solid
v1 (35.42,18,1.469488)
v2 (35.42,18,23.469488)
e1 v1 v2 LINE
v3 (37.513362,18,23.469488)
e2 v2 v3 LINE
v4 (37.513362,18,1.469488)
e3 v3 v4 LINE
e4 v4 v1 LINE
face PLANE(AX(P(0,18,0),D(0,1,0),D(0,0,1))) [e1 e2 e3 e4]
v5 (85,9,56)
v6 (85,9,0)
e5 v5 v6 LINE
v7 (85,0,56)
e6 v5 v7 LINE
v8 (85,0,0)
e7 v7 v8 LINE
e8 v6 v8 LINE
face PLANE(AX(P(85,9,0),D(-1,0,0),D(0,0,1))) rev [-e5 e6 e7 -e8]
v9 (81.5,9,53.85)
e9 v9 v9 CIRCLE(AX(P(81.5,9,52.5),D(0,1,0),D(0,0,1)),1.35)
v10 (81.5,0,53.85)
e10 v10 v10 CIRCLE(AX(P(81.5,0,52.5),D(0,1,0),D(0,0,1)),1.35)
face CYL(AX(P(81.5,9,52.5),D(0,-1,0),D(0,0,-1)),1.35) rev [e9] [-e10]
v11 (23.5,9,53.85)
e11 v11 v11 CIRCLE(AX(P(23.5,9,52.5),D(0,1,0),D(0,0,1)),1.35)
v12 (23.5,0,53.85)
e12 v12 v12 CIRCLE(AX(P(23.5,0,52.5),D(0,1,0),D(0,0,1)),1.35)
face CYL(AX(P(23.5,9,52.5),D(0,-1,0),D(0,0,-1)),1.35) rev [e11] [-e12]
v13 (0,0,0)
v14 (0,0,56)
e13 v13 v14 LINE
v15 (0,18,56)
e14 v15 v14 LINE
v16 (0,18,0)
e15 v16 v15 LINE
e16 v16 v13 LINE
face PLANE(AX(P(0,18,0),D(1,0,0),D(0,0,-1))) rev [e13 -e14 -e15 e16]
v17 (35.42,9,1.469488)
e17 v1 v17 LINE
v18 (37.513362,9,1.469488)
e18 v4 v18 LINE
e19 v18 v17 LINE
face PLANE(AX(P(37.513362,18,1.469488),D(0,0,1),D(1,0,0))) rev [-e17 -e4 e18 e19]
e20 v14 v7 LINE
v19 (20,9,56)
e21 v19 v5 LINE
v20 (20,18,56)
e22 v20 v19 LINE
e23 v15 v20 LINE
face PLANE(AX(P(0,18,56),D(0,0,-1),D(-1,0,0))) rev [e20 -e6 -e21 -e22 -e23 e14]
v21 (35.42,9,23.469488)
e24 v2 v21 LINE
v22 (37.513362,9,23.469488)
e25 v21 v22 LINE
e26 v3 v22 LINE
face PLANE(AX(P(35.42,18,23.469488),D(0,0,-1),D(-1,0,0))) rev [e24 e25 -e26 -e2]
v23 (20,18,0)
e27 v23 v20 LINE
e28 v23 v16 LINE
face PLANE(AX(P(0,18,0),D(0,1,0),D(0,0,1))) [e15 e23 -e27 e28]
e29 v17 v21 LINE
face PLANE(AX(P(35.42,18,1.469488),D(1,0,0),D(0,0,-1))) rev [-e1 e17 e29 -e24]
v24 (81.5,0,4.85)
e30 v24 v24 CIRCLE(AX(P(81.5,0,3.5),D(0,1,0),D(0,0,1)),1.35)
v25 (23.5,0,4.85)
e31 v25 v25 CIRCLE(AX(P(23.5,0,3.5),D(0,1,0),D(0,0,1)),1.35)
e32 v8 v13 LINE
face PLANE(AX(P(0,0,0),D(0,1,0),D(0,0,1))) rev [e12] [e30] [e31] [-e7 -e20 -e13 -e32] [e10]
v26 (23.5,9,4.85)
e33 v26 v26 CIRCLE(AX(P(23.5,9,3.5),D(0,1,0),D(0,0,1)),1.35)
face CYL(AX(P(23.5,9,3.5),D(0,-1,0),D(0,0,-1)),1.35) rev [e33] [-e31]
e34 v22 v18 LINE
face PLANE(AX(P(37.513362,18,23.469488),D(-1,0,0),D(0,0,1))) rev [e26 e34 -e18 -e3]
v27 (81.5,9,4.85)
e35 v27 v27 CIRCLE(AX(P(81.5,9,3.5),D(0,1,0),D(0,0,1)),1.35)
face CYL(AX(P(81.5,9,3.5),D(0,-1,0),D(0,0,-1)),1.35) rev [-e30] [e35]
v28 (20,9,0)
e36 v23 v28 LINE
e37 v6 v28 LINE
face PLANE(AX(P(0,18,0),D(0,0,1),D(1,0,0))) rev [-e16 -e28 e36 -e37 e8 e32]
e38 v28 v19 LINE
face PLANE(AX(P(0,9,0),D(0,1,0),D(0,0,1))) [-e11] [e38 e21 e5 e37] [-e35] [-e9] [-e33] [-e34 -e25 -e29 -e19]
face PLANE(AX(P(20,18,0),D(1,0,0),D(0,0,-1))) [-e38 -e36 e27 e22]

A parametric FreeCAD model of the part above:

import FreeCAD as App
import Part
import Sketcher
from FreeCAD import Vector


def add_polygon(sketch, points):
    """Adds a closed chain of lines whose ends are joined by coincident constraints."""
    first, n = sketch.GeometryCount, len(points)
    for a, b in zip(points, points[1:] + points[:1]):
        sketch.addGeometry(Part.LineSegment(App.Vector(*a, 0), App.Vector(*b, 0)), False)
    for i in range(n):
        sketch.addConstraint(Sketcher.Constraint("Coincident", first + i, 2, first + (i + 1) % n, 1))

doc = App.newDocument("Part")
params = doc.addObject("Spreadsheet::Sheet", "Params")
for row, (alias, value) in enumerate([
    ("sketch1_width", "20 mm"),
    ("sketch1_height", "56 mm"),
    ("pad1_length", "18 mm"),
    ("sketch2_height", "22 mm"),
    ("pad2_length", "18 mm"),
    ("sketch3_diameter", "2.7 mm"),
    ("sketch3_width", "65 mm"),
    ("sketch3_height", "56 mm"),
    ("sketch3_height2", "22 mm"),
    ("pad3_length", "9 mm"),
], start=1):
    params.set(f"A{row}", alias)
    params.set(f"B{row}", "=" + value)
    params.setAlias(f"B{row}", alias)

body = doc.addObject("PartDesign::Body", "Body")

# Sketch on XZ plane
sketch1 = body.newObject("Sketcher::SketchObject", "Sketch")
sketch1.AttachmentSupport = (doc.getObject("XZ_Plane"), [""])
sketch1.MapMode = "FlatFace"
add_polygon(sketch1, [(0, 0), (0, 56), (20, 56), (20, 0)])  # lines 0-3
sketch1.addConstraint(Sketcher.Constraint("Vertical", 0))
sketch1.addConstraint(Sketcher.Constraint("Horizontal", 1))
sketch1.addConstraint(Sketcher.Constraint("Vertical", 2))
sketch1.addConstraint(Sketcher.Constraint("Horizontal", 3))
sketch1.addConstraint(Sketcher.Constraint("Coincident", 3, 2, -1, 1))
sketch1.addConstraint(Sketcher.Constraint("DistanceX", 1, 1, 1, 2, 20.0))
sketch1.addConstraint(Sketcher.Constraint("DistanceY", 0, 1, 0, 2, 56.0))
sketch1.setExpression("Constraints[9]", "Params.sketch1_width")
sketch1.setExpression("Constraints[10]", "Params.sketch1_height")
pad1 = body.newObject("PartDesign::Pad", "Pad")
pad1.Profile = sketch1
pad1.setExpression("Length", "Params.pad1_length")
pad1.Reversed = True
body2 = doc.addObject("PartDesign::Body", "Body001")

# Sketch on XZ plane
sketch2 = body2.newObject("Sketcher::SketchObject", "Sketch001")
sketch2.AttachmentSupport = (doc.getObject("XZ_Plane001"), [""])
sketch2.MapMode = "FlatFace"
add_polygon(sketch2, [(35.4, 1.5), (35.4, 23.5), (37.5, 23.5), (37.5, 1.5)])  # lines 0-3
sketch2.addConstraint(Sketcher.Constraint("Vertical", 0))
sketch2.addConstraint(Sketcher.Constraint("Horizontal", 1))
sketch2.addConstraint(Sketcher.Constraint("Vertical", 2))
sketch2.addConstraint(Sketcher.Constraint("Horizontal", 3))
sketch2.addConstraint(Sketcher.Constraint("DistanceY", 0, 1, 0, 2, 22.0))
sketch2.addConstraint(Sketcher.Constraint("DistanceX", -1, 1, 0, 2, 35.42))
sketch2.addConstraint(Sketcher.Constraint("DistanceX", 1, 1, 1, 2, 2.093362))
sketch2.addConstraint(Sketcher.Constraint("DistanceY", -1, 1, 0, 2, 23.469488))
sketch2.setExpression("Constraints[8]", "Params.sketch2_height")
pad2 = body2.newObject("PartDesign::Pad", "Pad001")
pad2.Profile = sketch2
pad2.setExpression("Length", "Params.pad2_length")
pad2.Reversed = True
body.AllowCompound = True
doc.recompute()

boolean = body.newObject("PartDesign::Boolean", "Boolean")
boolean.Type = "Fuse"
boolean.addObjects([body2])

# Sketch on XZ plane
sketch3 = body.newObject("Sketcher::SketchObject", "Sketch002")
sketch3.AttachmentSupport = (doc.getObject("XZ_Plane"), [""])
sketch3.MapMode = "FlatFace"
add_polygon(sketch3, [(20, 0), (20, 56), (85, 56), (85, 0)])  # lines 0-3
sketch3.addGeometry(Part.Circle(Vector(23.5, 52.5, 0), Vector(0, 0, 1), 1.4), False)  # 4
sketch3.addGeometry(Part.Circle(Vector(81.5, 52.5, 0), Vector(0, 0, 1), 1.4), False)  # 5
add_polygon(sketch3, [(37.5, 23.5), (35.4, 23.5), (35.4, 1.5), (37.5, 1.5)])  # lines 6-9
sketch3.addGeometry(Part.Circle(Vector(23.5, 3.5, 0), Vector(0, 0, 1), 1.4), False)  # 10
sketch3.addGeometry(Part.Circle(Vector(81.5, 3.5, 0), Vector(0, 0, 1), 1.4), False)  # 11
sketch3.addConstraint(Sketcher.Constraint("Vertical", 0))
sketch3.addConstraint(Sketcher.Constraint("Horizontal", 1))
sketch3.addConstraint(Sketcher.Constraint("Vertical", 2))
sketch3.addConstraint(Sketcher.Constraint("Horizontal", 3))
sketch3.addConstraint(Sketcher.Constraint("Horizontal", 6))
sketch3.addConstraint(Sketcher.Constraint("Vertical", 7))
sketch3.addConstraint(Sketcher.Constraint("Horizontal", 8))
sketch3.addConstraint(Sketcher.Constraint("Vertical", 9))
sketch3.addConstraint(Sketcher.Constraint("Equal", 4, 5))
sketch3.addConstraint(Sketcher.Constraint("Equal", 5, 10))
sketch3.addConstraint(Sketcher.Constraint("Equal", 10, 11))
sketch3.addConstraint(Sketcher.Constraint("PointOnObject", 2, 2, -1))
sketch3.addConstraint(Sketcher.Constraint("Horizontal", 4, 3, 5, 3))
sketch3.addConstraint(Sketcher.Constraint("Horizontal", 10, 3, 11, 3))
sketch3.addConstraint(Sketcher.Constraint("Vertical", 4, 3, 10, 3))
sketch3.addConstraint(Sketcher.Constraint("Vertical", 5, 3, 11, 3))
sketch3.addConstraint(Sketcher.Constraint("Diameter", 4, 2.7))
sketch3.addConstraint(Sketcher.Constraint("DistanceX", 1, 1, 1, 2, 65.0))
sketch3.addConstraint(Sketcher.Constraint("DistanceY", 0, 1, 0, 2, 56.0))
sketch3.addConstraint(Sketcher.Constraint("DistanceY", 7, 2, 7, 1, 22.0))
sketch3.addConstraint(Sketcher.Constraint("DistanceX", -1, 1, 0, 2, 20.0))
sketch3.addConstraint(Sketcher.Constraint("DistanceX", 4, 3, 5, 3, 58.0))
sketch3.addConstraint(Sketcher.Constraint("DistanceY", 10, 3, 4, 3, 49.0))
sketch3.addConstraint(Sketcher.Constraint("DistanceX", -1, 1, 4, 3, 23.5))
sketch3.addConstraint(Sketcher.Constraint("DistanceY", -1, 1, 4, 3, 52.5))
sketch3.addConstraint(Sketcher.Constraint("DistanceX", -1, 1, 6, 2, 35.42))
sketch3.addConstraint(Sketcher.Constraint("DistanceX", 6, 2, 6, 1, 2.093362))
sketch3.addConstraint(Sketcher.Constraint("DistanceY", -1, 1, 6, 2, 23.469488))
sketch3.setExpression("Constraints[24]", "Params.sketch3_diameter")
sketch3.setExpression("Constraints[25]", "Params.sketch3_width")
sketch3.setExpression("Constraints[26]", "Params.sketch3_height")
sketch3.setExpression("Constraints[27]", "Params.sketch3_height2")
pad3 = body.newObject("PartDesign::Pad", "Pad002")
pad3.Profile = sketch3
pad3.setExpression("Length", "Params.pad3_length")
pad3.Reversed = True

doc.recompute()
